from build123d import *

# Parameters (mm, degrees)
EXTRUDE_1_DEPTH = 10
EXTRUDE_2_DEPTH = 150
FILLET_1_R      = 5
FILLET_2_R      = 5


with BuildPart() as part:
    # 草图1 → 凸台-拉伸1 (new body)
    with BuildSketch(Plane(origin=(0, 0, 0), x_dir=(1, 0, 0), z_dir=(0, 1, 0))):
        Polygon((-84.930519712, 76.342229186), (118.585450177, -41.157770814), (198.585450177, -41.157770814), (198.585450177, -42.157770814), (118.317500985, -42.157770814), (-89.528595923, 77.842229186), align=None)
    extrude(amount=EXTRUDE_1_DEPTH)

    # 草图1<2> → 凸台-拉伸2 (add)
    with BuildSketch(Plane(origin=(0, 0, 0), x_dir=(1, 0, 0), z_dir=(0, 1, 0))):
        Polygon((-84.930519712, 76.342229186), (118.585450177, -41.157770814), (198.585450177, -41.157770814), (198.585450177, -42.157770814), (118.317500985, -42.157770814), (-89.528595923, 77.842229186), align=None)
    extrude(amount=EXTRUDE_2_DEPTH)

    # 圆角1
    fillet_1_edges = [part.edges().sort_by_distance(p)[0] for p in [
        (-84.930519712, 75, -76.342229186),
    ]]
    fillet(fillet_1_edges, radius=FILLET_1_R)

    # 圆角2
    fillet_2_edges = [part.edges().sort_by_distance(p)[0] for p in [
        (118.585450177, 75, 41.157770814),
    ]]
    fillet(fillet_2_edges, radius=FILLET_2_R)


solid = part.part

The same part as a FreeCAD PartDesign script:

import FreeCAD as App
import Part
import Sketcher
from FreeCAD import Vector
Q = App.Units.Quantity


def edges_at(feature, points):
    """Names of the edges that pass closest to the given points."""
    edges = feature.Shape.Edges
    near = lambda p: min(range(len(edges)), key=lambda i: edges[i].distToShape(Part.Vertex(*p))[0])
    return sorted({f"Edge{near(p) + 1}" for p in points})

doc = App.newDocument("Part")
body = doc.addObject("PartDesign::Body", "Body")

sketch1 = body.newObject("Sketcher::SketchObject", "Sketch")
sketch1.AttachmentSupport = (doc.getObject("XZ_Plane"), [""])
sketch1.MapMode = "FlatFace"
sketch1.addGeometry([
    Part.LineSegment(Vector(118.6, 41.2, 0), Vector(-84.9, -76.3, 0)),
    Part.LineSegment(Vector(-84.9, -76.3, 0), Vector(-89.5, -77.8, 0)),
    Part.LineSegment(Vector(-89.5, -77.8, 0), Vector(118.3, 42.2, 0)),
    Part.LineSegment(Vector(118.3, 42.2, 0), Vector(198.6, 42.2, 0)),
    Part.LineSegment(Vector(198.6, 42.2, 0), Vector(198.6, 41.2, 0)),
    Part.LineSegment(Vector(198.6, 41.2, 0), Vector(118.6, 41.2, 0)),
], False)
sketch1.addConstraint([
    Sketcher.Constraint("Coincident", 0, 2, 1, 1),
    Sketcher.Constraint("Coincident", 1, 2, 2, 1),
    Sketcher.Constraint("Coincident", 2, 2, 3, 1),
    Sketcher.Constraint("Coincident", 3, 2, 4, 1),
    Sketcher.Constraint("Coincident", 4, 2, 5, 1),
    Sketcher.Constraint("Coincident", 5, 2, 0, 1),
    Sketcher.Constraint("Horizontal", 3),
    Sketcher.Constraint("Vertical", 4),
    Sketcher.Constraint("Horizontal", 5),
    Sketcher.Constraint("Parallel", 0, 2),
    Sketcher.Constraint("DistanceX", 5, 2, 5, 1, Q("80 mm")),
    Sketcher.Constraint("DistanceY", 4, 2, 4, 1, Q("1 mm")),
    Sketcher.Constraint("Angle", 0, Q("-150 deg")),
    Sketcher.Constraint("Distance", 0, Q("235 mm")),
    Sketcher.Constraint("Distance", 2, Q("240 mm")),
    Sketcher.Constraint("DistanceX", 3, 1, 3, 2, Q("80.267949 mm")),
    Sketcher.Constraint("DistanceX", -1, 1, 2, 2, Q("118.317501 mm")),
    Sketcher.Constraint("DistanceY", 0, 2, -1, 1, Q("76.342229 mm")),
])
pad1 = body.newObject("PartDesign::Pad", "Pad")
pad1.Profile = sketch1
pad1.Length = 10
pad1.Reversed = True

sketch2 = body.newObject("Sketcher::SketchObject", "Sketch001")
sketch2.AttachmentSupport = (doc.getObject("XZ_Plane"), [""])
sketch2.MapMode = "FlatFace"
sketch2.addGeometry([
    Part.LineSegment(Vector(118.6, 41.2, 0), Vector(-84.9, -76.3, 0)),
    Part.LineSegment(Vector(-84.9, -76.3, 0), Vector(-89.5, -77.8, 0)),
    Part.LineSegment(Vector(-89.5, -77.8, 0), Vector(118.3, 42.2, 0)),
    Part.LineSegment(Vector(118.3, 42.2, 0), Vector(198.6, 42.2, 0)),
    Part.LineSegment(Vector(198.6, 42.2, 0), Vector(198.6, 41.2, 0)),
    Part.LineSegment(Vector(198.6, 41.2, 0), Vector(118.6, 41.2, 0)),
], False)
sketch2.addConstraint([
    Sketcher.Constraint("Coincident", 0, 2, 1, 1),
    Sketcher.Constraint("Coincident", 1, 2, 2, 1),
    Sketcher.Constraint("Coincident", 2, 2, 3, 1),
    Sketcher.Constraint("Coincident", 3, 2, 4, 1),
    Sketcher.Constraint("Coincident", 4, 2, 5, 1),
    Sketcher.Constraint("Coincident", 5, 2, 0, 1),
    Sketcher.Constraint("Horizontal", 3),
    Sketcher.Constraint("Vertical", 4),
    Sketcher.Constraint("Horizontal", 5),
    Sketcher.Constraint("Parallel", 0, 2),
    Sketcher.Constraint("DistanceX", 5, 2, 5, 1, Q("80 mm")),
    Sketcher.Constraint("DistanceY", 4, 2, 4, 1, Q("1 mm")),
    Sketcher.Constraint("Angle", 0, Q("-150 deg")),
    Sketcher.Constraint("Distance", 0, Q("235 mm")),
    Sketcher.Constraint("Distance", 2, Q("240 mm")),
    Sketcher.Constraint("DistanceX", 3, 1, 3, 2, Q("80.267949 mm")),
    Sketcher.Constraint("DistanceX", -1, 1, 2, 2, Q("118.317501 mm")),
    Sketcher.Constraint("DistanceY", 0, 2, -1, 1, Q("76.342229 mm")),
])
pad2 = body.newObject("PartDesign::Pad", "Pad001")
pad2.Profile = sketch2
pad2.Length = 150
pad2.Reversed = True
doc.recompute()

fillet = body.newObject("PartDesign::Fillet", "Fillet")
fillet.Base = (pad2, edges_at(pad2, [(-84.931, 75, -76.342)]))
fillet.Radius = 5
doc.recompute()

fillet2 = body.newObject("PartDesign::Fillet", "Fillet001")
fillet2.Base = (fillet, edges_at(fillet, [(118.585, 75, 41.158)]))
fillet2.Radius = 5

doc.recompute()
